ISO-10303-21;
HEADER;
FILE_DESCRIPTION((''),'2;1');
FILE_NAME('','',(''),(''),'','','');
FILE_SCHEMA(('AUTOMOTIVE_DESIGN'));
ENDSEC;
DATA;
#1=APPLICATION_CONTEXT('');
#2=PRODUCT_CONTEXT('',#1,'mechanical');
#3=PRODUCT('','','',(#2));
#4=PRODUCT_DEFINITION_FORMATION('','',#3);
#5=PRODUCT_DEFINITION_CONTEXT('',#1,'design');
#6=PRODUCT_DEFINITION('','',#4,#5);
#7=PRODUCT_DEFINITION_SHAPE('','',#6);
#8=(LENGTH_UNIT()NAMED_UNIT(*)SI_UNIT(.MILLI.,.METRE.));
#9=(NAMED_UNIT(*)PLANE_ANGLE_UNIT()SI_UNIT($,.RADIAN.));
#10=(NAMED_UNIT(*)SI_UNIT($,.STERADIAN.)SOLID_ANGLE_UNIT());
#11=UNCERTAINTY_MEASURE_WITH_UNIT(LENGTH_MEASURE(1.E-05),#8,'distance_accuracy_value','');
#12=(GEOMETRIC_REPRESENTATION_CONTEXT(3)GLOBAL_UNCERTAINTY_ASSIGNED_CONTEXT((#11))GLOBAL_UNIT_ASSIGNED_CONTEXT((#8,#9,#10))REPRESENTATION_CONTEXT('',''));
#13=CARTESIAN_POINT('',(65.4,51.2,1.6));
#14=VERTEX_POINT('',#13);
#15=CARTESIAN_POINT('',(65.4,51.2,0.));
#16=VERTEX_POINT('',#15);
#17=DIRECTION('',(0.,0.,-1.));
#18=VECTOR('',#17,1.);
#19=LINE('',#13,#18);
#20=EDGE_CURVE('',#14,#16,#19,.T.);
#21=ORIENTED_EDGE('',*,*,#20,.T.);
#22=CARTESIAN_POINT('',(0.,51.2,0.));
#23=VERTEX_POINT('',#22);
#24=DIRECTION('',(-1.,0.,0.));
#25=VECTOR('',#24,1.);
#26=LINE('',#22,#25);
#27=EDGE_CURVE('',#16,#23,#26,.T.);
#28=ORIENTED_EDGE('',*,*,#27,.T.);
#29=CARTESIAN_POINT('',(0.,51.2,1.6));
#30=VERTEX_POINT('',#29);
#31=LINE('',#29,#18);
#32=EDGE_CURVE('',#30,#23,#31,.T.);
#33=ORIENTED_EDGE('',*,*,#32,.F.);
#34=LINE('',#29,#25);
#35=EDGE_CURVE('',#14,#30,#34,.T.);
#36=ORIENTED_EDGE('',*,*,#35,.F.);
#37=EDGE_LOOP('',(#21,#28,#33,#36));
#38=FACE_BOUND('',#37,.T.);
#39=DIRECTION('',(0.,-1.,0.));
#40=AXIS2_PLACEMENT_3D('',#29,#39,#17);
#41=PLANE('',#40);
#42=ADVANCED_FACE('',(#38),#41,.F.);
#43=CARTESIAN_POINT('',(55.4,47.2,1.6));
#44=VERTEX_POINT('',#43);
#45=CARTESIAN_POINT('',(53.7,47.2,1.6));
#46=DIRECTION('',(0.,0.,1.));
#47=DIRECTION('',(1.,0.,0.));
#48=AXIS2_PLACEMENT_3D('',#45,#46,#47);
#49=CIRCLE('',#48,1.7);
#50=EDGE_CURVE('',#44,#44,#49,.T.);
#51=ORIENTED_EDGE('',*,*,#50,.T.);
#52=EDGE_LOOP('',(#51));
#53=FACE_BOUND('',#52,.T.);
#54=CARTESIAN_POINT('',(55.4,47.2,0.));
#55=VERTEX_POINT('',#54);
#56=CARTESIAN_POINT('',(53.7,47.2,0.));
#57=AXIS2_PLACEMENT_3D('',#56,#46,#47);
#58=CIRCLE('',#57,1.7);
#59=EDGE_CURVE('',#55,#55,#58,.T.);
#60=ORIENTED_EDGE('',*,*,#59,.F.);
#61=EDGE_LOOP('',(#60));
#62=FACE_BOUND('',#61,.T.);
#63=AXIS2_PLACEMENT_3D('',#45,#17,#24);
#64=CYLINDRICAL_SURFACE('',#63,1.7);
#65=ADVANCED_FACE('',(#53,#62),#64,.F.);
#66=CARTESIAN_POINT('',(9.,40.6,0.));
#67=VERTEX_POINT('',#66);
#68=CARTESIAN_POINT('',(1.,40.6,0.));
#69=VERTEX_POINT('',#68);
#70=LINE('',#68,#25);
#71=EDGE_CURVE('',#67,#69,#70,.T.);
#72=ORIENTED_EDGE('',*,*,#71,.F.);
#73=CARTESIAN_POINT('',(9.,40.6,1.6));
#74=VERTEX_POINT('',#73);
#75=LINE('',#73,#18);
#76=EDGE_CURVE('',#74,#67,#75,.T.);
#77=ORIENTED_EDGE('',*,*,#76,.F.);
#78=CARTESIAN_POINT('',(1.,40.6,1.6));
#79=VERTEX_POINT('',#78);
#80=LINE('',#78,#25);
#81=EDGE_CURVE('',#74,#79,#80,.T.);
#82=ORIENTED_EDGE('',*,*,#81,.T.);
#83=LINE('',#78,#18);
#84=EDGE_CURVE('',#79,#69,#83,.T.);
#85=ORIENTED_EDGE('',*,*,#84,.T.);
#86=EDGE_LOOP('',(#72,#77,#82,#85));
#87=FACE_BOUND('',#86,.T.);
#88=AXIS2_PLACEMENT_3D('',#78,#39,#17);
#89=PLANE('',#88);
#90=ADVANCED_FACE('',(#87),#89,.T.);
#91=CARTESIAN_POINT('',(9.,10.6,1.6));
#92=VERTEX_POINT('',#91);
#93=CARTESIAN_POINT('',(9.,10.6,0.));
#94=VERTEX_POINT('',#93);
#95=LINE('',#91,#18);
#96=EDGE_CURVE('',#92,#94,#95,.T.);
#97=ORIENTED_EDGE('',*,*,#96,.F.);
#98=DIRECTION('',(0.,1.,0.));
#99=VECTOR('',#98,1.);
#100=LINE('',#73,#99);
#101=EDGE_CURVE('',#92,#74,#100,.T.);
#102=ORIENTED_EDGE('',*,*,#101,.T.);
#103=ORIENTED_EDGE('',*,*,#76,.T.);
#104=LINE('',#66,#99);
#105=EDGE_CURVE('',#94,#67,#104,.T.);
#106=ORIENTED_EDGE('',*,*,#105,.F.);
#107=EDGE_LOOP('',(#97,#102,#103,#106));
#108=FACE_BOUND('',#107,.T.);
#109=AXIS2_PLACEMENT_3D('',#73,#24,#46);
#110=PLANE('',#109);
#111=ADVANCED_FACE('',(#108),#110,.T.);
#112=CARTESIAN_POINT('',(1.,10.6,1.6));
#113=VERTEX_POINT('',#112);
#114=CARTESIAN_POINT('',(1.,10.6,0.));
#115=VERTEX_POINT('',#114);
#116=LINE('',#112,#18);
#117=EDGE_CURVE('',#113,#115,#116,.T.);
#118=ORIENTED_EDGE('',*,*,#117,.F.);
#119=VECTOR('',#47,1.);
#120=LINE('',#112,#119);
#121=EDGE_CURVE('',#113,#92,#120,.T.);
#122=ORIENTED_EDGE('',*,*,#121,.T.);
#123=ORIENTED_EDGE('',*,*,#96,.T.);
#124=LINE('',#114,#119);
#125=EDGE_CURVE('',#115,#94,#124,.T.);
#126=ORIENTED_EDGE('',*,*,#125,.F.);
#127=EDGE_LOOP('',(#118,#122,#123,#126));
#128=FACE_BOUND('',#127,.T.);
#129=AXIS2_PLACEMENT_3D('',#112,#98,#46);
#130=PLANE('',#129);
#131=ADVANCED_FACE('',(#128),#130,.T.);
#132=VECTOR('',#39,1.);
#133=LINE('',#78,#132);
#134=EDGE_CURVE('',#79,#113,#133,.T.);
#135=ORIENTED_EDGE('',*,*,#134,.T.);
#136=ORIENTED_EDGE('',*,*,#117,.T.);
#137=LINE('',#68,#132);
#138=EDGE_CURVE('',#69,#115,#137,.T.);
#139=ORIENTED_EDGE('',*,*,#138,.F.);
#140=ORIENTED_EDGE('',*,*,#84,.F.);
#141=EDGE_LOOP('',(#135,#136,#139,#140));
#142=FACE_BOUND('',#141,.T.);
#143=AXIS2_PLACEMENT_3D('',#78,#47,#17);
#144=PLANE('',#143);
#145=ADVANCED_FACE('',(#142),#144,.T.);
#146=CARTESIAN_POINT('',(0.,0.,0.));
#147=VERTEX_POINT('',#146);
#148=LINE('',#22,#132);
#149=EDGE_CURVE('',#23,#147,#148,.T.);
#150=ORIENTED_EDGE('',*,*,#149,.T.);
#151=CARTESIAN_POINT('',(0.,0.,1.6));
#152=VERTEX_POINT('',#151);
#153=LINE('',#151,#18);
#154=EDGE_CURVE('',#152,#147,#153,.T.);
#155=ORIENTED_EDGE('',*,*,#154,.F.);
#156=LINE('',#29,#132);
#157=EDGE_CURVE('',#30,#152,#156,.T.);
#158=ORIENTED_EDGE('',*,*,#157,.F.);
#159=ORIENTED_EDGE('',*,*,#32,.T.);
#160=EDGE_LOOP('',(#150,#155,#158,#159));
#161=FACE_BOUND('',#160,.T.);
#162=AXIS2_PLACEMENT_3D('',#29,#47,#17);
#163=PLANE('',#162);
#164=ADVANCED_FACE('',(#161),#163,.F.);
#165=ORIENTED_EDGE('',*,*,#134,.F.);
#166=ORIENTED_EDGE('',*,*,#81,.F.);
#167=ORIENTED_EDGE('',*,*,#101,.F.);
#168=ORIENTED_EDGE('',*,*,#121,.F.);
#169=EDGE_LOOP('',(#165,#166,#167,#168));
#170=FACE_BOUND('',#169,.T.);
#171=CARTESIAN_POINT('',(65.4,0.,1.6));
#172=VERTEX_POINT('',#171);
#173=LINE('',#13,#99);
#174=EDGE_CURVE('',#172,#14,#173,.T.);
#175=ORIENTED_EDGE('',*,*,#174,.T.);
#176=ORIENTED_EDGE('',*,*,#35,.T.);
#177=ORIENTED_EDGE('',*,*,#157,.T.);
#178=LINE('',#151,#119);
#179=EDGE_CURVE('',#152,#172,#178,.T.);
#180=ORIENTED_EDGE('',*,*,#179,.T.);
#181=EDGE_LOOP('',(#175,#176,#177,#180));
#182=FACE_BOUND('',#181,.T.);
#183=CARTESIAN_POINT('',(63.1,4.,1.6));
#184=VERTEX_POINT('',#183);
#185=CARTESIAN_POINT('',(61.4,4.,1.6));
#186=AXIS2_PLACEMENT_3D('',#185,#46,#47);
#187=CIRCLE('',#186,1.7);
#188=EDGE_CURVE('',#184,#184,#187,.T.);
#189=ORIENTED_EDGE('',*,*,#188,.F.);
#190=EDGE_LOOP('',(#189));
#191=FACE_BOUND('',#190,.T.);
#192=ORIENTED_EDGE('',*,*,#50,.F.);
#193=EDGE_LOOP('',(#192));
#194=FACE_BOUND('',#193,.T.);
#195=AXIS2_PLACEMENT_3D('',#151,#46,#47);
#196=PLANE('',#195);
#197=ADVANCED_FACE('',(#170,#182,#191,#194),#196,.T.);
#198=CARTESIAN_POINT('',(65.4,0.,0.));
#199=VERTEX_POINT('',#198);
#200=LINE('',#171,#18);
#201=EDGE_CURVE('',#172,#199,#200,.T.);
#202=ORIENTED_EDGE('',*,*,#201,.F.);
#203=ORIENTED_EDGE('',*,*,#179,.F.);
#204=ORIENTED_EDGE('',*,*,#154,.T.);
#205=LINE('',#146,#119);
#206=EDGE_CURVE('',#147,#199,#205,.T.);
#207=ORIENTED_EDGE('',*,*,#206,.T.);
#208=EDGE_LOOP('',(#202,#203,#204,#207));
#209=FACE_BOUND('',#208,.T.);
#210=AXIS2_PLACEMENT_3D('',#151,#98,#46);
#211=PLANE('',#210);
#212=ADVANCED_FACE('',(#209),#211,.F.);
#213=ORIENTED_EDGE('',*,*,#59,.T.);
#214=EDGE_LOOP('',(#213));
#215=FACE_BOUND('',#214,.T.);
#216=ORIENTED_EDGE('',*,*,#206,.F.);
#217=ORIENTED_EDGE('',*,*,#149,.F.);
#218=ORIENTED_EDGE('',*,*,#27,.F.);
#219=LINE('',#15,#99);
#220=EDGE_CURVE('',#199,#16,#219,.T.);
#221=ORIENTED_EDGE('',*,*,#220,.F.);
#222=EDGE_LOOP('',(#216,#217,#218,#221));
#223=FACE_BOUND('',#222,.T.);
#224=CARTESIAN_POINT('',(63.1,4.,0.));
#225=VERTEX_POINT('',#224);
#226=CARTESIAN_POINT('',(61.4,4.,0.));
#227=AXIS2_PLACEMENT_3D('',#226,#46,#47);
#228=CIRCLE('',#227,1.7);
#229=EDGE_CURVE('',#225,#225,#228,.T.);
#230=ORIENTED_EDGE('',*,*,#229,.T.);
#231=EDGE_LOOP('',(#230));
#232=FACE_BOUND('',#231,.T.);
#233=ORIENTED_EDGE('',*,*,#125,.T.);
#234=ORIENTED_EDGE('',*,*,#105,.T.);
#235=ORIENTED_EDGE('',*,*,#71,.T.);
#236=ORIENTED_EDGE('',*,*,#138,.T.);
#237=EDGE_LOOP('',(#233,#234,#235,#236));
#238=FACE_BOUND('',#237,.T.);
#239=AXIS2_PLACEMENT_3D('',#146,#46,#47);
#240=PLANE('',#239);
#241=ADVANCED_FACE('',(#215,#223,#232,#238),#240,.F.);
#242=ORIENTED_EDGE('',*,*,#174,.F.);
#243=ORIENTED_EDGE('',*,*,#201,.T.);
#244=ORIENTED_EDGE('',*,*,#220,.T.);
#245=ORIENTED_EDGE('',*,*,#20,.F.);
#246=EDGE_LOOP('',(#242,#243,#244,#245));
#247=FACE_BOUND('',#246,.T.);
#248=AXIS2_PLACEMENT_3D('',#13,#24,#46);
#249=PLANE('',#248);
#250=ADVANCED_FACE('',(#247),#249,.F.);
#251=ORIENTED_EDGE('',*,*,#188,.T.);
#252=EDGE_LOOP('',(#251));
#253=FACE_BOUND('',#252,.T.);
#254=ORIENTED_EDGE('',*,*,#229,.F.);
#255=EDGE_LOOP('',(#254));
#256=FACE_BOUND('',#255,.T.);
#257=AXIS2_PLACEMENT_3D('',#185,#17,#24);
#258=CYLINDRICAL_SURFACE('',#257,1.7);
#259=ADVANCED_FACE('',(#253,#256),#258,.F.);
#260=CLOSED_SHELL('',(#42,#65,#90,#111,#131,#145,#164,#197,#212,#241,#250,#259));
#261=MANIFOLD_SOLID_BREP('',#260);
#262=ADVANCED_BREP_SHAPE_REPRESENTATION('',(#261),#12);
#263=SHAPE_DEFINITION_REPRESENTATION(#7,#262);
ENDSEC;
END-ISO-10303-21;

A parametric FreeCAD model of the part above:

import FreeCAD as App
import Part
import Sketcher
from FreeCAD import Vector

doc = App.newDocument("Part")
body = doc.addObject("PartDesign::Body", "Body")

# Sketch on XY plane
sketch1 = doc.addObject("Sketcher::SketchObject", "Sketch")
body.addObject(sketch1)
sketch1.AttachmentSupport = (doc.XY_Plane, [""])
sketch1.MapMode = "FlatFace"
sketch1.addGeometry([
    Part.LineSegment(Vector(0, 51.2, 0), Vector(0, 0, 0)),  # 0
    Part.LineSegment(Vector(0, 0, 0), Vector(65.4, 0, 0)),  # 1
    Part.LineSegment(Vector(65.4, 0, 0), Vector(65.4, 51.2, 0)),  # 2
    Part.LineSegment(Vector(65.4, 51.2, 0), Vector(0, 51.2, 0)),  # 3
    Part.Circle(Vector(61.4, 4, 0), Vector(0, 0, 1), 1.7),  # 4
    Part.LineSegment(Vector(9, 10.6, 0), Vector(1, 10.6, 0)),  # 5
    Part.LineSegment(Vector(1, 10.6, 0), Vector(1, 40.6, 0)),  # 6
    Part.LineSegment(Vector(1, 40.6, 0), Vector(9, 40.6, 0)),  # 7
    Part.LineSegment(Vector(9, 40.6, 0), Vector(9, 10.6, 0)),  # 8
    Part.Circle(Vector(53.7, 47.2, 0), Vector(0, 0, 1), 1.7),  # 9
], False)
sketch1.addConstraint([
    Sketcher.Constraint("Coincident", 0, 2, 1, 1),
    Sketcher.Constraint("Coincident", 1, 2, 2, 1),
    Sketcher.Constraint("Coincident", 2, 2, 3, 1),
    Sketcher.Constraint("Coincident", 3, 2, 0, 1),
    Sketcher.Constraint("Coincident", 5, 2, 6, 1),
    Sketcher.Constraint("Coincident", 6, 2, 7, 1),
    Sketcher.Constraint("Coincident", 7, 2, 8, 1),
    Sketcher.Constraint("Coincident", 8, 2, 5, 1),
    Sketcher.Constraint("Vertical", 0),
    Sketcher.Constraint("Horizontal", 1),
    Sketcher.Constraint("Vertical", 2),
    Sketcher.Constraint("Horizontal", 3),
    Sketcher.Constraint("Horizontal", 5),
    Sketcher.Constraint("Vertical", 6),
    Sketcher.Constraint("Horizontal", 7),
    Sketcher.Constraint("Vertical", 8),
    Sketcher.Constraint("Coincident", 0, 2, -1, 1),
    Sketcher.Constraint("Equal", 4, 9),
    Sketcher.Constraint("Diameter", 4, 3.4),
    Sketcher.Constraint("DistanceX", 5, 2, 5, 1, 8.0),
    Sketcher.Constraint("DistanceY", 6, 1, 6, 2, 30.0),
    Sketcher.Constraint("DistanceX", 1, 1, 1, 2, 65.4),
    Sketcher.Constraint("DistanceY", 0, 2, 0, 1, 51.2),
    Sketcher.Constraint("DistanceY", -1, 1, 4, 3, 4.0),
    Sketcher.Constraint("DistanceX", -1, 1, 5, 2, 1.0),
    Sketcher.Constraint("DistanceX", 4, 3, 1, 2, 4.0),
    Sketcher.Constraint("DistanceY", 9, 3, 2, 2, 4.0),
    Sketcher.Constraint("DistanceX", -1, 1, 9, 3, 53.7),
    Sketcher.Constraint("DistanceY", -1, 1, 5, 2, 10.6),
])
pad1 = doc.addObject("PartDesign::Pad", "Pad")
body.addObject(pad1)
pad1.Profile = sketch1
pad1.Length = 1.6

doc.recompute()
